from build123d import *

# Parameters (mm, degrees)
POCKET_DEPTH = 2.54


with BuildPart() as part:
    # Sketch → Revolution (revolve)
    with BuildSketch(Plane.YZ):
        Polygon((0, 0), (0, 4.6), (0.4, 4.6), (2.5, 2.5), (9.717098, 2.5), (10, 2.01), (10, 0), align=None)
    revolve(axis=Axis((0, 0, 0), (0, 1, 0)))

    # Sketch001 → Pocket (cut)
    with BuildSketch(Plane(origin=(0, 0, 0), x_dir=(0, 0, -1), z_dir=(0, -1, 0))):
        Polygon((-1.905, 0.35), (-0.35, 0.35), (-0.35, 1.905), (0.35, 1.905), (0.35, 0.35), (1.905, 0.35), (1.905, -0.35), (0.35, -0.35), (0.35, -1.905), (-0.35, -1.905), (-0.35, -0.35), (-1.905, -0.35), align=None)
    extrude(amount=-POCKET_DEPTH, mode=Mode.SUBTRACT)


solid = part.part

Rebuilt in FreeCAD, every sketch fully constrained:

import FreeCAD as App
import Part
import Sketcher
from FreeCAD import Vector
Q = App.Units.Quantity


def add_polygon(sketch, points):
    """Adds a closed chain of lines whose ends are joined by coincident constraints."""
    first, n = sketch.GeometryCount, len(points)
    for a, b in zip(points, points[1:] + points[:1]):
        sketch.addGeometry(Part.LineSegment(App.Vector(*a, 0), App.Vector(*b, 0)), False)
    for i in range(n):
        sketch.addConstraint(Sketcher.Constraint("Coincident", first + i, 2, first + (i + 1) % n, 1))

doc = App.newDocument("Part")
body = doc.addObject("PartDesign::Body", "Body")

# Sketch on YZ plane
sketch1 = doc.addObject("Sketcher::SketchObject", "Sketch")
body.addObject(sketch1)
sketch1.AttachmentSupport = (doc.YZ_Plane, [""])
sketch1.MapMode = "FlatFace"
add_polygon(sketch1, [(0, 4.6), (0, 0), (10, 0), (10, 2.01), (9.72, 2.5), (2.5, 2.5), (0.4, 4.6)])  # lines 0-6
sketch1.addConstraint([
    Sketcher.Constraint("Vertical", 0),
    Sketcher.Constraint("Horizontal", 1),
    Sketcher.Constraint("Vertical", 2),
    Sketcher.Constraint("Horizontal", 4),
    Sketcher.Constraint("Horizontal", 6),
    Sketcher.Constraint("Coincident", 0, 2, -1, 1),
    Sketcher.Constraint("DistanceX", 1, 1, 1, 2, 10.0),
    Sketcher.Constraint("Angle", 5, Q("135 deg")),
    Sketcher.Constraint("DistanceX", 6, 2, 6, 1, 0.4),
    Sketcher.Constraint("DistanceY", 0, 2, 0, 1, 4.6),
    Sketcher.Constraint("DistanceY", 2, 1, 2, 2, 2.01),
    Sketcher.Constraint("DistanceY", -1, 1, 3, 2, 2.5),
    Sketcher.Constraint("DistanceX", 4, 2, 4, 1, 7.217098),
])
revolution = doc.addObject("PartDesign::Revolution", "Revolution")
body.addObject(revolution)
revolution.Profile = sketch1
revolution.ReferenceAxis = (sketch1, ["H_Axis"])
revolution.Angle = 360

# Sketch on XZ plane
sketch2 = doc.addObject("Sketcher::SketchObject", "Sketch001")
body.addObject(sketch2)
sketch2.AttachmentSupport = (doc.XZ_Plane, [""])
sketch2.MapMode = "FlatFace"
add_polygon(sketch2, [(0.3, 0.3), (0.3, 1.9), (-0.3, 1.9), (-0.3, 0.3), (-1.9, 0.3), (-1.9, -0.3), (-0.3, -0.3), (-0.3, -1.9), (0.3, -1.9), (0.3, -0.3), (1.9, -0.3), (1.9, 0.3)])  # lines 0-11
sketch2.addConstraint([
    Sketcher.Constraint("Vertical", 0),
    Sketcher.Constraint("Horizontal", 1),
    Sketcher.Constraint("Vertical", 2),
    Sketcher.Constraint("Horizontal", 3),
    Sketcher.Constraint("Vertical", 4),
    Sketcher.Constraint("Horizontal", 5),
    Sketcher.Constraint("Vertical", 6),
    Sketcher.Constraint("Horizontal", 7),
    Sketcher.Constraint("Vertical", 8),
    Sketcher.Constraint("Horizontal", 9),
    Sketcher.Constraint("Vertical", 10),
    Sketcher.Constraint("Horizontal", 11),
    Sketcher.Constraint("Symmetric", 0, 2, 6, 2, -1, 1),
    Sketcher.Constraint("Symmetric", 2, 2, 8, 2, -1, 1),
    Sketcher.Constraint("Symmetric", 4, 2, 10, 2, -1, 1),
    Sketcher.Constraint("Symmetric", 5, 2, 8, 2, -2),
    Sketcher.Constraint("Equal", 11, 0),
    Sketcher.Constraint("Equal", 7, 4),
    Sketcher.Constraint("DistanceX", 1, 2, 1, 1, 0.7),
    Sketcher.Constraint("DistanceX", 3, 2, 3, 1, 1.555),
])
pocket1 = doc.addObject("PartDesign::Pocket", "Pocket")
body.addObject(pocket1)
pocket1.Profile = sketch2
pocket1.Length = 2.54

doc.recompute()
